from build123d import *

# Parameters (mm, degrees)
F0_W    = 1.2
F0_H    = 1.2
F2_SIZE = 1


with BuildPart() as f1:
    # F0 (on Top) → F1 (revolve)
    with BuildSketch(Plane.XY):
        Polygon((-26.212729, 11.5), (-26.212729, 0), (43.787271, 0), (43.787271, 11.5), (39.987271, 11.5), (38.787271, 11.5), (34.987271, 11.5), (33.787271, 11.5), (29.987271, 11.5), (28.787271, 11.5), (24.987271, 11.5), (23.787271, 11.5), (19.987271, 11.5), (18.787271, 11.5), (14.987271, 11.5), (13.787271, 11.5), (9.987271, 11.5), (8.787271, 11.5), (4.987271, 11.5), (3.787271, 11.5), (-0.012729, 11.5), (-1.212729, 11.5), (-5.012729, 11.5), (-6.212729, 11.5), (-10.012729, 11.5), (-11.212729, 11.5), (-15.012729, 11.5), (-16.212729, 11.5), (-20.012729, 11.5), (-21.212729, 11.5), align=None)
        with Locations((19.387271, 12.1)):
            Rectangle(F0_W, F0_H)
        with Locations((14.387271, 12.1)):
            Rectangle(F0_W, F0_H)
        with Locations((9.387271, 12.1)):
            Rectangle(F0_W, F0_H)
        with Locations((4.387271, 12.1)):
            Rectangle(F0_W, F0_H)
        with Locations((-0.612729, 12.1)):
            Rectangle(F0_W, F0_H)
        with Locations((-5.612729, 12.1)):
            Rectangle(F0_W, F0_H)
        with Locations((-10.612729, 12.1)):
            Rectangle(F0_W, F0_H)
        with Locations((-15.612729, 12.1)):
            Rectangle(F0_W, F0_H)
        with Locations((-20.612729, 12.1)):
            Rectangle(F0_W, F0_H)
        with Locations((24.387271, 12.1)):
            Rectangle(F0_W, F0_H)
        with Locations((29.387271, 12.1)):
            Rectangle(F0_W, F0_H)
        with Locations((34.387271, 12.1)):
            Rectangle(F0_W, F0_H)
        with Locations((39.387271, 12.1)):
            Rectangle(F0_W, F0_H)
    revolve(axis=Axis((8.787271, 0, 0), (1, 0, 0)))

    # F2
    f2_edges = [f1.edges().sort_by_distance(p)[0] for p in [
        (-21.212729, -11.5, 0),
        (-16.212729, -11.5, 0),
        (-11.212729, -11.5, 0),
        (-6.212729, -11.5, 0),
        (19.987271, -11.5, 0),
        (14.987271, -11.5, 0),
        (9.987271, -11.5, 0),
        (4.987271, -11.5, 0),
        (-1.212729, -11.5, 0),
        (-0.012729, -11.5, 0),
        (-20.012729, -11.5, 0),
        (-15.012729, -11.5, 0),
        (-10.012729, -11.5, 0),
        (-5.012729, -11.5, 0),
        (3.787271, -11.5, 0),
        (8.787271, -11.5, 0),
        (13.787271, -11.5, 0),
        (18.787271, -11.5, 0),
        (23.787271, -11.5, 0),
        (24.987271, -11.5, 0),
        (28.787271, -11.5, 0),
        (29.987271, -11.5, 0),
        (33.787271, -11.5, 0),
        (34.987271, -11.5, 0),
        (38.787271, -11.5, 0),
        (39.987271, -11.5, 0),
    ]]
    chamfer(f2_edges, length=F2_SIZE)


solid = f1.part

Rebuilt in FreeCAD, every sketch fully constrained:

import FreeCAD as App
import Part
import Sketcher

V = App.Vector
Q = App.Units.Quantity


def edges_at(feature, points):
    """Names of the edges that pass closest to the given points."""
    edges = feature.Shape.Edges
    near = lambda p: min(range(len(edges)), key=lambda i: edges[i].distToShape(Part.Vertex(*p))[0])
    return sorted({f"Edge{near(p) + 1}" for p in points})

doc = App.newDocument("Part")
body = doc.addObject("PartDesign::Body", "Body")

# Sketch on XY plane
sketch1 = body.newObject("Sketcher::SketchObject", "Sketch")
sketch1.AttachmentSupport = (doc.getObject("XY_Plane"), [""])
sketch1.MapMode = "FlatFace"
sketch1.addGeometry(Part.LineSegment(V(-26.2, 11.5, 0), V(-26.2, 0, 0)), False)
sketch1.addGeometry(Part.LineSegment(V(-26.2, 0, 0), V(43.8, 0, 0)), False)
sketch1.addGeometry(Part.LineSegment(V(43.8, 0, 0), V(43.8, 11.5, 0)), False)
sketch1.addGeometry(Part.LineSegment(V(43.8, 11.5, 0), V(40, 11.5, 0)), False)
sketch1.addGeometry(Part.LineSegment(V(40, 11.5, 0), V(40, 12.7, 0)), False)
sketch1.addGeometry(Part.LineSegment(V(40, 12.7, 0), V(38.8, 12.7, 0)), False)
sketch1.addGeometry(Part.LineSegment(V(38.8, 12.7, 0), V(38.8, 11.5, 0)), False)
sketch1.addGeometry(Part.LineSegment(V(38.8, 11.5, 0), V(35, 11.5, 0)), False)
sketch1.addGeometry(Part.LineSegment(V(35, 11.5, 0), V(35, 12.7, 0)), False)
sketch1.addGeometry(Part.LineSegment(V(35, 12.7, 0), V(33.8, 12.7, 0)), False)
sketch1.addGeometry(Part.LineSegment(V(33.8, 12.7, 0), V(33.8, 11.5, 0)), False)
sketch1.addGeometry(Part.LineSegment(V(33.8, 11.5, 0), V(30, 11.5, 0)), False)
sketch1.addGeometry(Part.LineSegment(V(30, 11.5, 0), V(30, 12.7, 0)), False)
sketch1.addGeometry(Part.LineSegment(V(30, 12.7, 0), V(28.8, 12.7, 0)), False)
sketch1.addGeometry(Part.LineSegment(V(28.8, 12.7, 0), V(28.8, 11.5, 0)), False)
sketch1.addGeometry(Part.LineSegment(V(28.8, 11.5, 0), V(25, 11.5, 0)), False)
sketch1.addGeometry(Part.LineSegment(V(25, 11.5, 0), V(25, 12.7, 0)), False)
sketch1.addGeometry(Part.LineSegment(V(25, 12.7, 0), V(23.8, 12.7, 0)), False)
sketch1.addGeometry(Part.LineSegment(V(23.8, 12.7, 0), V(23.8, 11.5, 0)), False)
sketch1.addGeometry(Part.LineSegment(V(23.8, 11.5, 0), V(20, 11.5, 0)), False)
sketch1.addGeometry(Part.LineSegment(V(20, 11.5, 0), V(20, 12.7, 0)), False)
sketch1.addGeometry(Part.LineSegment(V(20, 12.7, 0), V(18.8, 12.7, 0)), False)
sketch1.addGeometry(Part.LineSegment(V(18.8, 12.7, 0), V(18.8, 11.5, 0)), False)
sketch1.addGeometry(Part.LineSegment(V(18.8, 11.5, 0), V(15, 11.5, 0)), False)
sketch1.addGeometry(Part.LineSegment(V(15, 11.5, 0), V(15, 12.7, 0)), False)
sketch1.addGeometry(Part.LineSegment(V(15, 12.7, 0), V(13.8, 12.7, 0)), False)
sketch1.addGeometry(Part.LineSegment(V(13.8, 12.7, 0), V(13.8, 11.5, 0)), False)
sketch1.addGeometry(Part.LineSegment(V(13.8, 11.5, 0), V(10, 11.5, 0)), False)
sketch1.addGeometry(Part.LineSegment(V(10, 11.5, 0), V(10, 12.7, 0)), False)
sketch1.addGeometry(Part.LineSegment(V(10, 12.7, 0), V(8.8, 12.7, 0)), False)
sketch1.addGeometry(Part.LineSegment(V(8.8, 12.7, 0), V(8.8, 11.5, 0)), False)
sketch1.addGeometry(Part.LineSegment(V(8.8, 11.5, 0), V(5, 11.5, 0)), False)
sketch1.addGeometry(Part.LineSegment(V(5, 11.5, 0), V(5, 12.7, 0)), False)
sketch1.addGeometry(Part.LineSegment(V(5, 12.7, 0), V(3.8, 12.7, 0)), False)
sketch1.addGeometry(Part.LineSegment(V(3.8, 12.7, 0), V(3.8, 11.5, 0)), False)
sketch1.addGeometry(Part.LineSegment(V(3.8, 11.5, 0), V(0, 11.5, 0)), False)
sketch1.addGeometry(Part.LineSegment(V(0, 11.5, 0), V(0, 12.7, 0)), False)
sketch1.addGeometry(Part.LineSegment(V(0, 12.7, 0), V(-1.2, 12.7, 0)), False)
sketch1.addGeometry(Part.LineSegment(V(-1.2, 12.7, 0), V(-1.2, 11.5, 0)), False)
sketch1.addGeometry(Part.LineSegment(V(-1.2, 11.5, 0), V(-5, 11.5, 0)), False)
sketch1.addGeometry(Part.LineSegment(V(-5, 11.5, 0), V(-5, 12.7, 0)), False)
sketch1.addGeometry(Part.LineSegment(V(-5, 12.7, 0), V(-6.2, 12.7, 0)), False)
sketch1.addGeometry(Part.LineSegment(V(-6.2, 12.7, 0), V(-6.2, 11.5, 0)), False)
sketch1.addGeometry(Part.LineSegment(V(-6.2, 11.5, 0), V(-10, 11.5, 0)), False)
sketch1.addGeometry(Part.LineSegment(V(-10, 11.5, 0), V(-10, 12.7, 0)), False)
sketch1.addGeometry(Part.LineSegment(V(-10, 12.7, 0), V(-11.2, 12.7, 0)), False)
sketch1.addGeometry(Part.LineSegment(V(-11.2, 12.7, 0), V(-11.2, 11.5, 0)), False)
sketch1.addGeometry(Part.LineSegment(V(-11.2, 11.5, 0), V(-15, 11.5, 0)), False)
sketch1.addGeometry(Part.LineSegment(V(-15, 11.5, 0), V(-15, 12.7, 0)), False)
sketch1.addGeometry(Part.LineSegment(V(-15, 12.7, 0), V(-16.2, 12.7, 0)), False)
sketch1.addGeometry(Part.LineSegment(V(-16.2, 12.7, 0), V(-16.2, 11.5, 0)), False)
sketch1.addGeometry(Part.LineSegment(V(-16.2, 11.5, 0), V(-20, 11.5, 0)), False)
sketch1.addGeometry(Part.LineSegment(V(-20, 11.5, 0), V(-20, 12.7, 0)), False)
sketch1.addGeometry(Part.LineSegment(V(-20, 12.7, 0), V(-21.2, 12.7, 0)), False)
sketch1.addGeometry(Part.LineSegment(V(-21.2, 12.7, 0), V(-21.2, 11.5, 0)), False)
sketch1.addGeometry(Part.LineSegment(V(-21.2, 11.5, 0), V(-26.2, 11.5, 0)), False)
sketch1.addConstraint(Sketcher.Constraint("Coincident", 0, 2, 1, 1))
sketch1.addConstraint(Sketcher.Constraint("Coincident", 1, 2, 2, 1))
sketch1.addConstraint(Sketcher.Constraint("Coincident", 2, 2, 3, 1))
sketch1.addConstraint(Sketcher.Constraint("Coincident", 3, 2, 4, 1))
sketch1.addConstraint(Sketcher.Constraint("Coincident", 4, 2, 5, 1))
sketch1.addConstraint(Sketcher.Constraint("Coincident", 5, 2, 6, 1))
sketch1.addConstraint(Sketcher.Constraint("Coincident", 6, 2, 7, 1))
sketch1.addConstraint(Sketcher.Constraint("Coincident", 7, 2, 8, 1))
sketch1.addConstraint(Sketcher.Constraint("Coincident", 8, 2, 9, 1))
sketch1.addConstraint(Sketcher.Constraint("Coincident", 9, 2, 10, 1))
sketch1.addConstraint(Sketcher.Constraint("Coincident", 10, 2, 11, 1))
sketch1.addConstraint(Sketcher.Constraint("Coincident", 11, 2, 12, 1))
sketch1.addConstraint(Sketcher.Constraint("Coincident", 12, 2, 13, 1))
sketch1.addConstraint(Sketcher.Constraint("Coincident", 13, 2, 14, 1))
sketch1.addConstraint(Sketcher.Constraint("Coincident", 14, 2, 15, 1))
sketch1.addConstraint(Sketcher.Constraint("Coincident", 15, 2, 16, 1))
sketch1.addConstraint(Sketcher.Constraint("Coincident", 16, 2, 17, 1))
sketch1.addConstraint(Sketcher.Constraint("Coincident", 17, 2, 18, 1))
sketch1.addConstraint(Sketcher.Constraint("Coincident", 18, 2, 19, 1))
sketch1.addConstraint(Sketcher.Constraint("Coincident", 19, 2, 20, 1))
sketch1.addConstraint(Sketcher.Constraint("Coincident", 20, 2, 21, 1))
sketch1.addConstraint(Sketcher.Constraint("Coincident", 21, 2, 22, 1))
sketch1.addConstraint(Sketcher.Constraint("Coincident", 22, 2, 23, 1))
sketch1.addConstraint(Sketcher.Constraint("Coincident", 23, 2, 24, 1))
sketch1.addConstraint(Sketcher.Constraint("Coincident", 24, 2, 25, 1))
sketch1.addConstraint(Sketcher.Constraint("Coincident", 25, 2, 26, 1))
sketch1.addConstraint(Sketcher.Constraint("Coincident", 26, 2, 27, 1))
sketch1.addConstraint(Sketcher.Constraint("Coincident", 27, 2, 28, 1))
sketch1.addConstraint(Sketcher.Constraint("Coincident", 28, 2, 29, 1))
sketch1.addConstraint(Sketcher.Constraint("Coincident", 29, 2, 30, 1))
sketch1.addConstraint(Sketcher.Constraint("Coincident", 30, 2, 31, 1))
sketch1.addConstraint(Sketcher.Constraint("Coincident", 31, 2, 32, 1))
sketch1.addConstraint(Sketcher.Constraint("Coincident", 32, 2, 33, 1))
sketch1.addConstraint(Sketcher.Constraint("Coincident", 33, 2, 34, 1))
sketch1.addConstraint(Sketcher.Constraint("Coincident", 34, 2, 35, 1))
sketch1.addConstraint(Sketcher.Constraint("Coincident", 35, 2, 36, 1))
sketch1.addConstraint(Sketcher.Constraint("Coincident", 36, 2, 37, 1))
sketch1.addConstraint(Sketcher.Constraint("Coincident", 37, 2, 38, 1))
sketch1.addConstraint(Sketcher.Constraint("Coincident", 38, 2, 39, 1))
sketch1.addConstraint(Sketcher.Constraint("Coincident", 39, 2, 40, 1))
sketch1.addConstraint(Sketcher.Constraint("Coincident", 40, 2, 41, 1))
sketch1.addConstraint(Sketcher.Constraint("Coincident", 41, 2, 42, 1))
sketch1.addConstraint(Sketcher.Constraint("Coincident", 42, 2, 43, 1))
sketch1.addConstraint(Sketcher.Constraint("Coincident", 43, 2, 44, 1))
sketch1.addConstraint(Sketcher.Constraint("Coincident", 44, 2, 45, 1))
sketch1.addConstraint(Sketcher.Constraint("Coincident", 45, 2, 46, 1))
sketch1.addConstraint(Sketcher.Constraint("Coincident", 46, 2, 47, 1))
sketch1.addConstraint(Sketcher.Constraint("Coincident", 47, 2, 48, 1))
sketch1.addConstraint(Sketcher.Constraint("Coincident", 48, 2, 49, 1))
sketch1.addConstraint(Sketcher.Constraint("Coincident", 49, 2, 50, 1))
sketch1.addConstraint(Sketcher.Constraint("Coincident", 50, 2, 51, 1))
sketch1.addConstraint(Sketcher.Constraint("Coincident", 51, 2, 52, 1))
sketch1.addConstraint(Sketcher.Constraint("Coincident", 52, 2, 53, 1))
sketch1.addConstraint(Sketcher.Constraint("Coincident", 53, 2, 54, 1))
sketch1.addConstraint(Sketcher.Constraint("Coincident", 54, 2, 55, 1))
sketch1.addConstraint(Sketcher.Constraint("Coincident", 55, 2, 0, 1))
sketch1.addConstraint(Sketcher.Constraint("Vertical", 0))
sketch1.addConstraint(Sketcher.Constraint("Horizontal", 1))
sketch1.addConstraint(Sketcher.Constraint("Vertical", 2))
sketch1.addConstraint(Sketcher.Constraint("Horizontal", 3))
sketch1.addConstraint(Sketcher.Constraint("Vertical", 4))
sketch1.addConstraint(Sketcher.Constraint("Horizontal", 5))
sketch1.addConstraint(Sketcher.Constraint("Vertical", 6))
sketch1.addConstraint(Sketcher.Constraint("Horizontal", 7))
sketch1.addConstraint(Sketcher.Constraint("Vertical", 8))
sketch1.addConstraint(Sketcher.Constraint("Horizontal", 9))
sketch1.addConstraint(Sketcher.Constraint("Vertical", 10))
sketch1.addConstraint(Sketcher.Constraint("Horizontal", 11))
sketch1.addConstraint(Sketcher.Constraint("Vertical", 12))
sketch1.addConstraint(Sketcher.Constraint("Horizontal", 13))
sketch1.addConstraint(Sketcher.Constraint("Vertical", 14))
sketch1.addConstraint(Sketcher.Constraint("Horizontal", 15))
sketch1.addConstraint(Sketcher.Constraint("Vertical", 16))
sketch1.addConstraint(Sketcher.Constraint("Horizontal", 17))
sketch1.addConstraint(Sketcher.Constraint("Vertical", 18))
sketch1.addConstraint(Sketcher.Constraint("Horizontal", 19))
sketch1.addConstraint(Sketcher.Constraint("Vertical", 20))
sketch1.addConstraint(Sketcher.Constraint("Horizontal", 21))
sketch1.addConstraint(Sketcher.Constraint("Vertical", 22))
sketch1.addConstraint(Sketcher.Constraint("Horizontal", 23))
sketch1.addConstraint(Sketcher.Constraint("Vertical", 24))
sketch1.addConstraint(Sketcher.Constraint("Horizontal", 25))
sketch1.addConstraint(Sketcher.Constraint("Vertical", 26))
sketch1.addConstraint(Sketcher.Constraint("Horizontal", 27))
sketch1.addConstraint(Sketcher.Constraint("Vertical", 28))
sketch1.addConstraint(Sketcher.Constraint("Horizontal", 29))
sketch1.addConstraint(Sketcher.Constraint("Vertical", 30))
sketch1.addConstraint(Sketcher.Constraint("Horizontal", 31))
sketch1.addConstraint(Sketcher.Constraint("Vertical", 32))
sketch1.addConstraint(Sketcher.Constraint("Horizontal", 33))
sketch1.addConstraint(Sketcher.Constraint("Vertical", 34))
sketch1.addConstraint(Sketcher.Constraint("Horizontal", 35))
sketch1.addConstraint(Sketcher.Constraint("Vertical", 36))
sketch1.addConstraint(Sketcher.Constraint("Horizontal", 37))
sketch1.addConstraint(Sketcher.Constraint("Vertical", 38))
sketch1.addConstraint(Sketcher.Constraint("Horizontal", 39))
sketch1.addConstraint(Sketcher.Constraint("Vertical", 40))
sketch1.addConstraint(Sketcher.Constraint("Horizontal", 41))
sketch1.addConstraint(Sketcher.Constraint("Vertical", 42))
sketch1.addConstraint(Sketcher.Constraint("Horizontal", 43))
sketch1.addConstraint(Sketcher.Constraint("Vertical", 44))
sketch1.addConstraint(Sketcher.Constraint("Horizontal", 45))
sketch1.addConstraint(Sketcher.Constraint("Vertical", 46))
sketch1.addConstraint(Sketcher.Constraint("Horizontal", 47))
sketch1.addConstraint(Sketcher.Constraint("Vertical", 48))
sketch1.addConstraint(Sketcher.Constraint("Horizontal", 49))
sketch1.addConstraint(Sketcher.Constraint("Vertical", 50))
sketch1.addConstraint(Sketcher.Constraint("Horizontal", 51))
sketch1.addConstraint(Sketcher.Constraint("Vertical", 52))
sketch1.addConstraint(Sketcher.Constraint("Horizontal", 53))
sketch1.addConstraint(Sketcher.Constraint("Vertical", 54))
sketch1.addConstraint(Sketcher.Constraint("Horizontal", 55))
sketch1.addConstraint(Sketcher.Constraint("PointOnObject", 0, 2, -1))
sketch1.addConstraint(Sketcher.Constraint("Horizontal", 3, 2, 6, 2))
sketch1.addConstraint(Sketcher.Constraint("Horizontal", 5, 2, 8, 2))
sketch1.addConstraint(Sketcher.Constraint("Horizontal", 7, 2, 10, 2))
sketch1.addConstraint(Sketcher.Constraint("Horizontal", 9, 2, 12, 2))
sketch1.addConstraint(Sketcher.Constraint("Horizontal", 11, 2, 14, 2))
sketch1.addConstraint(Sketcher.Constraint("Horizontal", 13, 2, 16, 2))
sketch1.addConstraint(Sketcher.Constraint("Horizontal", 15, 2, 18, 2))
sketch1.addConstraint(Sketcher.Constraint("Horizontal", 17, 2, 20, 2))
sketch1.addConstraint(Sketcher.Constraint("Horizontal", 19, 2, 22, 2))
sketch1.addConstraint(Sketcher.Constraint("Horizontal", 21, 2, 24, 2))
sketch1.addConstraint(Sketcher.Constraint("Horizontal", 23, 2, 26, 2))
sketch1.addConstraint(Sketcher.Constraint("Horizontal", 25, 2, 28, 2))
sketch1.addConstraint(Sketcher.Constraint("Horizontal", 27, 2, 30, 2))
sketch1.addConstraint(Sketcher.Constraint("Horizontal", 29, 2, 32, 2))
sketch1.addConstraint(Sketcher.Constraint("Horizontal", 31, 2, 34, 2))
sketch1.addConstraint(Sketcher.Constraint("Horizontal", 33, 2, 36, 2))
sketch1.addConstraint(Sketcher.Constraint("Horizontal", 35, 2, 38, 2))
sketch1.addConstraint(Sketcher.Constraint("Horizontal", 37, 2, 40, 2))
sketch1.addConstraint(Sketcher.Constraint("Horizontal", 39, 2, 42, 2))
sketch1.addConstraint(Sketcher.Constraint("Horizontal", 41, 2, 44, 2))
sketch1.addConstraint(Sketcher.Constraint("Horizontal", 43, 2, 46, 2))
sketch1.addConstraint(Sketcher.Constraint("Horizontal", 45, 2, 48, 2))
sketch1.addConstraint(Sketcher.Constraint("Horizontal", 47, 2, 50, 2))
sketch1.addConstraint(Sketcher.Constraint("Horizontal", 49, 2, 52, 2))
sketch1.addConstraint(Sketcher.Constraint("Horizontal", 51, 2, 54, 2))
sketch1.addConstraint(Sketcher.Constraint("Equal", 3, 7))
sketch1.addConstraint(Sketcher.Constraint("Equal", 5, 9))
sketch1.addConstraint(Sketcher.Constraint("Equal", 7, 11))
sketch1.addConstraint(Sketcher.Constraint("Equal", 9, 13))
sketch1.addConstraint(Sketcher.Constraint("Equal", 11, 15))
sketch1.addConstraint(Sketcher.Constraint("Equal", 13, 17))
sketch1.addConstraint(Sketcher.Constraint("Equal", 15, 19))
sketch1.addConstraint(Sketcher.Constraint("Equal", 17, 21))
sketch1.addConstraint(Sketcher.Constraint("Equal", 19, 23))
sketch1.addConstraint(Sketcher.Constraint("Equal", 21, 25))
sketch1.addConstraint(Sketcher.Constraint("Equal", 23, 27))
sketch1.addConstraint(Sketcher.Constraint("Equal", 25, 29))
sketch1.addConstraint(Sketcher.Constraint("Equal", 27, 31))
sketch1.addConstraint(Sketcher.Constraint("Equal", 29, 33))
sketch1.addConstraint(Sketcher.Constraint("Equal", 31, 35))
sketch1.addConstraint(Sketcher.Constraint("Equal", 33, 37))
sketch1.addConstraint(Sketcher.Constraint("Equal", 35, 39))
sketch1.addConstraint(Sketcher.Constraint("Equal", 37, 41))
sketch1.addConstraint(Sketcher.Constraint("Equal", 39, 43))
sketch1.addConstraint(Sketcher.Constraint("Equal", 41, 45))
sketch1.addConstraint(Sketcher.Constraint("Equal", 43, 47))
sketch1.addConstraint(Sketcher.Constraint("Equal", 45, 49))
sketch1.addConstraint(Sketcher.Constraint("Equal", 47, 51))
sketch1.addConstraint(Sketcher.Constraint("Equal", 49, 53))
sketch1.addConstraint(Sketcher.Constraint("Equal", 53, 4))
sketch1.addConstraint(Sketcher.Constraint("DistanceX", 1, 1, 1, 2, Q("70 mm")))
sketch1.addConstraint(Sketcher.Constraint("DistanceX", 55, 2, 55, 1, Q("5 mm")))
sketch1.addConstraint(Sketcher.Constraint("DistanceX", 3, 2, 3, 1, Q("3.8 mm")))
sketch1.addConstraint(Sketcher.Constraint("DistanceY", 0, 2, 0, 1, Q("11.5 mm")))
sketch1.addConstraint(Sketcher.Constraint("DistanceX", 0, 2, -1, 1, Q("26.212729 mm")))
revolution = body.newObject("PartDesign::Revolution", "Revolution")
revolution.Profile = sketch1
revolution.ReferenceAxis = (sketch1, ["H_Axis"])
revolution.Angle = 360
doc.recompute()

chamfer = body.newObject("PartDesign::Chamfer", "Chamfer")
chamfer.Base = (revolution, edges_at(revolution, [
    (-21.213, -11.5, 0),
    (-16.213, -11.5, 0),
    (-11.213, -11.5, 0),
    (-6.213, -11.5, 0),
    (19.987, -11.5, 0),
    (14.987, -11.5, 0),
    (9.987, -11.5, 0),
    (4.987, -11.5, 0),
    (-1.213, -11.5, 0),
    (-0.013, -11.5, 0),
    (-20.013, -11.5, 0),
    (-15.013, -11.5, 0),
    (-10.013, -11.5, 0),
    (-5.013, -11.5, 0),
    (3.787, -11.5, 0),
    (8.787, -11.5, 0),
    (13.787, -11.5, 0),
    (18.787, -11.5, 0),
    (23.787, -11.5, 0),
    (24.987, -11.5, 0),
    (28.787, -11.5, 0),
    (29.987, -11.5, 0),
    (33.787, -11.5, 0),
    (34.987, -11.5, 0),
    (38.787, -11.5, 0),
    (39.987, -11.5, 0),
]))
chamfer.Size = 1

doc.recompute()
